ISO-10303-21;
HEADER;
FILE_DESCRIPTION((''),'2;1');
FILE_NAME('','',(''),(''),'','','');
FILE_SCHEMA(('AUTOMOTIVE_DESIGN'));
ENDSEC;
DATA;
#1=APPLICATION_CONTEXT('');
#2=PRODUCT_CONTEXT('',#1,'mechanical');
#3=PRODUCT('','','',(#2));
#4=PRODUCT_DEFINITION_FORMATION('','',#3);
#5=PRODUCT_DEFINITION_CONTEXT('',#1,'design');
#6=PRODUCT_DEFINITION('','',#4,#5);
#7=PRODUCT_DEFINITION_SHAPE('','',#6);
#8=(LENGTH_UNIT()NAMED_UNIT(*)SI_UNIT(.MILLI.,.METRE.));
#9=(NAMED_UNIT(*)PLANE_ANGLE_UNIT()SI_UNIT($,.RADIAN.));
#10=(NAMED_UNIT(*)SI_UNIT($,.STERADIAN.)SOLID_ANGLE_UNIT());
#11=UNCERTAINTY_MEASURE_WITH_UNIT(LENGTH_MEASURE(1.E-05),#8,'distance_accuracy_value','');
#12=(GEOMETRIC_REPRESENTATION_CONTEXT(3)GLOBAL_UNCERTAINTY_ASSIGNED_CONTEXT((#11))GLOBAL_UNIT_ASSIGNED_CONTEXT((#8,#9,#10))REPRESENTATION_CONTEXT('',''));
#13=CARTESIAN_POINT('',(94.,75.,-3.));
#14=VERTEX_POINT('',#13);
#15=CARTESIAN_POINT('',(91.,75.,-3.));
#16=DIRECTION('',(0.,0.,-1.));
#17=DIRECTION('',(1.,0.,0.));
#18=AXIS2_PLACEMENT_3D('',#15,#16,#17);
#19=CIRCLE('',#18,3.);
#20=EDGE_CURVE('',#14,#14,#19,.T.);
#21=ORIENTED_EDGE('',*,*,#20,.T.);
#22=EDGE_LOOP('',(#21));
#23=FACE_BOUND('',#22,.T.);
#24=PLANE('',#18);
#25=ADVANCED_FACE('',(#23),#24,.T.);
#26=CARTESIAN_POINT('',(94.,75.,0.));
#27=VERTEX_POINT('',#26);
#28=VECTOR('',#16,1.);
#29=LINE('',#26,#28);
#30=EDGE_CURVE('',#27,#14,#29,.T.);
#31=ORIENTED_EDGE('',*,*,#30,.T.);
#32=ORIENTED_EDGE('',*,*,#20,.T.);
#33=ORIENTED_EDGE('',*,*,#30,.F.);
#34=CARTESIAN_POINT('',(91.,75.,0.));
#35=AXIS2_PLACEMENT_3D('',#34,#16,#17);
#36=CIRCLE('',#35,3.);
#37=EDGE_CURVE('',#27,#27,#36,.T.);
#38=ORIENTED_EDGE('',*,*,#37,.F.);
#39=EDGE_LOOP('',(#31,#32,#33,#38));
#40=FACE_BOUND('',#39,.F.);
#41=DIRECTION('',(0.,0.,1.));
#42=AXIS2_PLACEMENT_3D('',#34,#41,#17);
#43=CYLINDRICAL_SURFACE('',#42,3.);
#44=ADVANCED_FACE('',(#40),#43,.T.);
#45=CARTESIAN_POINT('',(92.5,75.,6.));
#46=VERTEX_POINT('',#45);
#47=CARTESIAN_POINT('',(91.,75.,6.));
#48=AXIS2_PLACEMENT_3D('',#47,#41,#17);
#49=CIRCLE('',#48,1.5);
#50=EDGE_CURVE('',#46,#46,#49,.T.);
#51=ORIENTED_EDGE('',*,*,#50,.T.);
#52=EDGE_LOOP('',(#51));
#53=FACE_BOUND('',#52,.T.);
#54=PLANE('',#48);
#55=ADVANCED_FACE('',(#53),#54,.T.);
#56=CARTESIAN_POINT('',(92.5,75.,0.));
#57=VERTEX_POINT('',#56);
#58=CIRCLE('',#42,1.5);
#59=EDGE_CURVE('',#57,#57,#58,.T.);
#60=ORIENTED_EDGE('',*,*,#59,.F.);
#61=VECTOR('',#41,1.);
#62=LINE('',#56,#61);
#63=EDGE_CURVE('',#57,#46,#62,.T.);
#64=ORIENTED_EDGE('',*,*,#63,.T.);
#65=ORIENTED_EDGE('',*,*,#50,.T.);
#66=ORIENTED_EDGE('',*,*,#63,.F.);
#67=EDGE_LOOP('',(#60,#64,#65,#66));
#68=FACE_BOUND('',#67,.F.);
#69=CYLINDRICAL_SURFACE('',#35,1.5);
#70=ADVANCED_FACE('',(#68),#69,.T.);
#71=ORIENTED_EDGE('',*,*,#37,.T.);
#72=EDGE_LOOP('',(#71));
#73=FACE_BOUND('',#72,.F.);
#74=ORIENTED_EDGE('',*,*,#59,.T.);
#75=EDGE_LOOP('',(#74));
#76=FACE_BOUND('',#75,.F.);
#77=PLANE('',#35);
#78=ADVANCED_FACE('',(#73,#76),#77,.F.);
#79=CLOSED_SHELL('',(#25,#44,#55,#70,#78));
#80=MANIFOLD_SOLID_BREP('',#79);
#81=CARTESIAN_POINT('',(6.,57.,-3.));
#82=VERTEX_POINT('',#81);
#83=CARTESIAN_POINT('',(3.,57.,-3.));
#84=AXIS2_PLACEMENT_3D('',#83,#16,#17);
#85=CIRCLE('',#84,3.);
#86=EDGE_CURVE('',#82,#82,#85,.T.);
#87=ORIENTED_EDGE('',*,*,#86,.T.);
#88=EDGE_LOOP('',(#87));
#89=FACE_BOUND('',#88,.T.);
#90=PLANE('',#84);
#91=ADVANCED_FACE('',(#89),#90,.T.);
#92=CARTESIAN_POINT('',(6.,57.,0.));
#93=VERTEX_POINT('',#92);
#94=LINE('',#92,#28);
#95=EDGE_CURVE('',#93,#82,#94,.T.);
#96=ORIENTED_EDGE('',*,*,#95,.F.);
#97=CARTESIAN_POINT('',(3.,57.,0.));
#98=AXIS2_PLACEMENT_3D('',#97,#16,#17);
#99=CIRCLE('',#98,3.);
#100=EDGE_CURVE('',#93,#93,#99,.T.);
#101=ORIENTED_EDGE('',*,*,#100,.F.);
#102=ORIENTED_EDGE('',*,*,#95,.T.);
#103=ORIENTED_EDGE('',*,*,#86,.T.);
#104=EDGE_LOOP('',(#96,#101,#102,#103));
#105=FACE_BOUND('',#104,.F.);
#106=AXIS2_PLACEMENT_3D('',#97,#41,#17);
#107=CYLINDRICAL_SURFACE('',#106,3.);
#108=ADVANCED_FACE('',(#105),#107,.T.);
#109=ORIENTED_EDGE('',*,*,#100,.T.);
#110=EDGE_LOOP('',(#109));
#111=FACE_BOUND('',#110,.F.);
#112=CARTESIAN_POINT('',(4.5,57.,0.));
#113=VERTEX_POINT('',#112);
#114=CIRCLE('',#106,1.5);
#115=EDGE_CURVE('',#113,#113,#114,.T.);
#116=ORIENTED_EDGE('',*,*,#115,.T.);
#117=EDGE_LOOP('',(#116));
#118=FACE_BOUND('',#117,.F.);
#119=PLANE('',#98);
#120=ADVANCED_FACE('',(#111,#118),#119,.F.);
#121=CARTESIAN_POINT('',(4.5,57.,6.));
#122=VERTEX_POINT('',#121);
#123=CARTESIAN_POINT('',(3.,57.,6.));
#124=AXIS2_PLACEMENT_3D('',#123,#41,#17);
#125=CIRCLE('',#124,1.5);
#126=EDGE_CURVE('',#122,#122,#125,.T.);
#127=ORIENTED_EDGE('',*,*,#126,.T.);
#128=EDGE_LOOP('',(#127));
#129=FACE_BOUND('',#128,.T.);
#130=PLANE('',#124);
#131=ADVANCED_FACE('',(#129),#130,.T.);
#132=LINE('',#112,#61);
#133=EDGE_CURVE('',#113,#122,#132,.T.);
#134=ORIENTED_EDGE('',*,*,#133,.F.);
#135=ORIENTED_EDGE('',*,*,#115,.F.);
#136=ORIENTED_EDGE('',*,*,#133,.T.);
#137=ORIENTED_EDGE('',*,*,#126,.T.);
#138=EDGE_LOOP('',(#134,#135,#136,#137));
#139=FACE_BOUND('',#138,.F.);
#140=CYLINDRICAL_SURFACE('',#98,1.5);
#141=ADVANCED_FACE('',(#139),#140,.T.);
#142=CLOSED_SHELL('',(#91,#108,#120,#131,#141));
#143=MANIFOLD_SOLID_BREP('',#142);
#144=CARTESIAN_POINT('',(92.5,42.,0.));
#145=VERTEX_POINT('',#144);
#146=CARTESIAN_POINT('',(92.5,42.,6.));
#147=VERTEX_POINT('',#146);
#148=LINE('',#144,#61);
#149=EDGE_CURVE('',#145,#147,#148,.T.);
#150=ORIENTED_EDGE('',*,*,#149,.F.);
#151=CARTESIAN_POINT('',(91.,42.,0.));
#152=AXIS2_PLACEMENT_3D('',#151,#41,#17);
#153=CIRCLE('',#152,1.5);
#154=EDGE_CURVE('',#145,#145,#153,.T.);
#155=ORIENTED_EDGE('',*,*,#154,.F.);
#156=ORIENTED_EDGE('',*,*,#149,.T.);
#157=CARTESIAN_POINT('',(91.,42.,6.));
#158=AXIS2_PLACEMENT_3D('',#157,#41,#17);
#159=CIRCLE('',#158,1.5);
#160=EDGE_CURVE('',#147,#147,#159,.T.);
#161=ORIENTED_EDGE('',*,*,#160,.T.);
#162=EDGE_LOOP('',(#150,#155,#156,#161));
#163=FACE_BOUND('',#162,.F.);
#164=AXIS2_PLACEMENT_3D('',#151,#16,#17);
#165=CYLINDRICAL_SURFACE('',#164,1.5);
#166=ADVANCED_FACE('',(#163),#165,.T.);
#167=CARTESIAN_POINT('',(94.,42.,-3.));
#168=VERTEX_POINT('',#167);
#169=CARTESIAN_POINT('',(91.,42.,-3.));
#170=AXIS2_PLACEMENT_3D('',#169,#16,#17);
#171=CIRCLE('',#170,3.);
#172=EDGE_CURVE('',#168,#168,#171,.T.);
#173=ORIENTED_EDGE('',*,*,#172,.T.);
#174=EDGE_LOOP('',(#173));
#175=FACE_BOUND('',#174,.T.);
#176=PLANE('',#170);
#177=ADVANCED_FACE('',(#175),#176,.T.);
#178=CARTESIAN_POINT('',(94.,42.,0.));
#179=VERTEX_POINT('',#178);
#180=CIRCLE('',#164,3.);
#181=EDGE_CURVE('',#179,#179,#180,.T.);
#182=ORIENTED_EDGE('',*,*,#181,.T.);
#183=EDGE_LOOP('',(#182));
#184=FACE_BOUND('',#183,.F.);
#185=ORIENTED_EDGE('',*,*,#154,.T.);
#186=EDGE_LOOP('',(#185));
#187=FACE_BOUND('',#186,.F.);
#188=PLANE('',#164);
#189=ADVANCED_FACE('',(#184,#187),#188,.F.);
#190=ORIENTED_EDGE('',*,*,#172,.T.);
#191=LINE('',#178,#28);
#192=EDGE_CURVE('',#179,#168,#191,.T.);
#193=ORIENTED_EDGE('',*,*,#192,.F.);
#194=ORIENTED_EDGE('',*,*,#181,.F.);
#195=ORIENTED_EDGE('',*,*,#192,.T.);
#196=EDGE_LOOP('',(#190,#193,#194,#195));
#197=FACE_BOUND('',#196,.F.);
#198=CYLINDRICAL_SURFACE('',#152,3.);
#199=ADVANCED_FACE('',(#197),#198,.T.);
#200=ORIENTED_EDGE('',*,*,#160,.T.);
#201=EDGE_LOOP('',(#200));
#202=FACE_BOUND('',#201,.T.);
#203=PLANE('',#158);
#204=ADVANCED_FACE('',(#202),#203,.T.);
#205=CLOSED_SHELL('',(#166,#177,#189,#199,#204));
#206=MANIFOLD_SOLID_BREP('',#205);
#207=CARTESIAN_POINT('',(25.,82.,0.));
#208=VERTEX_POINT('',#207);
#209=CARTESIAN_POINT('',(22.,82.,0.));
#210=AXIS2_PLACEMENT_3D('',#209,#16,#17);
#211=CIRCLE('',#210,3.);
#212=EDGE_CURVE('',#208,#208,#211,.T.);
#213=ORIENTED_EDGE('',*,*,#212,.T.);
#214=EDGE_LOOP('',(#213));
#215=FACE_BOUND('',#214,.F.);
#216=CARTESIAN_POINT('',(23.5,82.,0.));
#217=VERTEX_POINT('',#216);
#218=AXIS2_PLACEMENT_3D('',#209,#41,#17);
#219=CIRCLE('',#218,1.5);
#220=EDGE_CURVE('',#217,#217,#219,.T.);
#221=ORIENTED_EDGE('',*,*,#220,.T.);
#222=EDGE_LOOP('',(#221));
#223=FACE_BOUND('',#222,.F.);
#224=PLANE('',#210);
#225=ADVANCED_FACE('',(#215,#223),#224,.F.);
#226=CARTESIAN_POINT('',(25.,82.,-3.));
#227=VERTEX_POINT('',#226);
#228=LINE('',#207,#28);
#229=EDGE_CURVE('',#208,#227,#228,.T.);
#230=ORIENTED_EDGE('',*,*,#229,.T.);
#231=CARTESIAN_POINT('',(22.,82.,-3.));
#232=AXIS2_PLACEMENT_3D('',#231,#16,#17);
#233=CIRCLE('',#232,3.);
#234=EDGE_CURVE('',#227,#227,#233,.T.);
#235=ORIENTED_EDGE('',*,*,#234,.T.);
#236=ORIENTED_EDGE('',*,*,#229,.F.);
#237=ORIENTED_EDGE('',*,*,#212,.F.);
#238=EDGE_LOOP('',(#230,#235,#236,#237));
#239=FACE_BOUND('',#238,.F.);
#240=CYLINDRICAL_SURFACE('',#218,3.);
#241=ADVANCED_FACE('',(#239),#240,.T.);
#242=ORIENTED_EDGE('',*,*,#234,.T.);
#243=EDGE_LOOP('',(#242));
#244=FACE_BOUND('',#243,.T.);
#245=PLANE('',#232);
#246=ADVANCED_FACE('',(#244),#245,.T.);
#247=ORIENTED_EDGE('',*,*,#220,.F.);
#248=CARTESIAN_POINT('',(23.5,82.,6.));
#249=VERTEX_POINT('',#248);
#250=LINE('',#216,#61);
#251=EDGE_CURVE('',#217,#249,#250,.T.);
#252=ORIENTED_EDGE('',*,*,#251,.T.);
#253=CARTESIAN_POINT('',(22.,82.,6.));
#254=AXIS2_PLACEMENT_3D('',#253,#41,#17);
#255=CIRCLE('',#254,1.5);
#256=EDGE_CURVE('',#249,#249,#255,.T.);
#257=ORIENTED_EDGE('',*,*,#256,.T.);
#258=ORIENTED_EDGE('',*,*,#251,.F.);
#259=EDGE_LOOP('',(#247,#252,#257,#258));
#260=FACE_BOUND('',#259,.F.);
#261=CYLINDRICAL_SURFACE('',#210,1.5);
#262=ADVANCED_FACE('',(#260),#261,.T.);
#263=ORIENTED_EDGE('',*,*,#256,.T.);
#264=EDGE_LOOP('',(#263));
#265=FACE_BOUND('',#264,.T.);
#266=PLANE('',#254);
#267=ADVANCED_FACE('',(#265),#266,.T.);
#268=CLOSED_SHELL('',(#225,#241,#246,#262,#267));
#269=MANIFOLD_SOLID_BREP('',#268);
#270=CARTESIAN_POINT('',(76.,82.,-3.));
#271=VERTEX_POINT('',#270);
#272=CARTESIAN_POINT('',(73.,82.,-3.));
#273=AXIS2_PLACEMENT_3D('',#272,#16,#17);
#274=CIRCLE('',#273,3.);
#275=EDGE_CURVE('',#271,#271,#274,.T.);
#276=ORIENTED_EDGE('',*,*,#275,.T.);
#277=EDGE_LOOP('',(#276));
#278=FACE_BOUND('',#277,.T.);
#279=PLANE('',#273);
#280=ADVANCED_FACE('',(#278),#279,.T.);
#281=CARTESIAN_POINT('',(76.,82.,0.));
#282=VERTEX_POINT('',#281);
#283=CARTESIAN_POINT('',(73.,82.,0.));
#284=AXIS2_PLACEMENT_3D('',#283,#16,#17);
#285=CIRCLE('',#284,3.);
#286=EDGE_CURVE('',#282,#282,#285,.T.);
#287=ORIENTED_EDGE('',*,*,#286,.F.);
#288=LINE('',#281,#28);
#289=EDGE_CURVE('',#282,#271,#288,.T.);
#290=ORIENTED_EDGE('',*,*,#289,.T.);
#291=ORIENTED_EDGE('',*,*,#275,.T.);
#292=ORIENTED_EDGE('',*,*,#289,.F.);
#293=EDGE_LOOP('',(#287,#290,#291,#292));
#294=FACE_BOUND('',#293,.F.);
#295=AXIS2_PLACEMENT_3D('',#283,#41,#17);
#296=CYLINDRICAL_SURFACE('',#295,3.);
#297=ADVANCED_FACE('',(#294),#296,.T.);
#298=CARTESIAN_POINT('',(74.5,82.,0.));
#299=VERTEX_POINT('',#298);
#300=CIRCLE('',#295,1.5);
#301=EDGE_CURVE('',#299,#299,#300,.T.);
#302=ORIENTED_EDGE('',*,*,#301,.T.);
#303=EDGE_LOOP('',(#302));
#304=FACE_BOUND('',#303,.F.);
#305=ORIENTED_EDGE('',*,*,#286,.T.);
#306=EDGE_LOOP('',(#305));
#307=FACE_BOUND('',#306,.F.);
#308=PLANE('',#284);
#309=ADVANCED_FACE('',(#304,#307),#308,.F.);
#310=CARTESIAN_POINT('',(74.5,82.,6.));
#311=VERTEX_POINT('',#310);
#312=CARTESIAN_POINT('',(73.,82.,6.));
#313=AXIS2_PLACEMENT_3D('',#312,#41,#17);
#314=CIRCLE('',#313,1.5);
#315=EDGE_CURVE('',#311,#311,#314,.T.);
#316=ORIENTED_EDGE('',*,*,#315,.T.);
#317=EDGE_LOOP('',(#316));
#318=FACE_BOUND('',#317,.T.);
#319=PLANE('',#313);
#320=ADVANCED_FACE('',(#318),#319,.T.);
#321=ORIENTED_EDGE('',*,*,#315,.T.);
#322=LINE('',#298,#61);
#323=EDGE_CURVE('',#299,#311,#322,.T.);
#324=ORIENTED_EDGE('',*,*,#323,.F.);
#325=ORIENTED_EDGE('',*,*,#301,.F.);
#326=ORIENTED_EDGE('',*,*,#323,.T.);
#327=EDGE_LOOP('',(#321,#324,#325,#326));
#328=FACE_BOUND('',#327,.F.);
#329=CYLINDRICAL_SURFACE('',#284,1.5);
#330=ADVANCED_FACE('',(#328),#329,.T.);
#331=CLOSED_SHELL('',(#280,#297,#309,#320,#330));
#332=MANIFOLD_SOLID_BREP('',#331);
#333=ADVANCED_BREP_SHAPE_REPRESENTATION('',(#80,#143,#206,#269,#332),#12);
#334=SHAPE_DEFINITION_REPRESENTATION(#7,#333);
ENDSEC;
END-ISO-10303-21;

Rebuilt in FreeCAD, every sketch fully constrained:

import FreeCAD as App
import Part
import Sketcher

doc = App.newDocument("Part")
params = doc.addObject("Spreadsheet::Sheet", "Params")
for row, (alias, value) in enumerate([
    ("sketch1_diameter", "3 mm"),
    ("pad1_length", "6 mm"),
    ("sketch2_diameter", "6 mm"),
    ("pad2_length", "3 mm"),
], start=1):
    params.set(f"A{row}", alias)
    params.set(f"B{row}", "=" + value)
    params.setAlias(f"B{row}", alias)

body = doc.addObject("PartDesign::Body", "Body")
body.AllowCompound = True

# Sketch on XY plane
sketch1 = body.newObject("Sketcher::SketchObject", "Sketch")
sketch1.AttachmentSupport = (doc.getObject("XY_Plane"), [""])
sketch1.MapMode = "FlatFace"
sketch1.addGeometry(Part.Circle(App.Vector(3, 57, 0), App.Vector(0, 0, 1), 1.5), False)
sketch1.addGeometry(Part.Circle(App.Vector(22, 82, 0), App.Vector(0, 0, 1), 1.5), False)
sketch1.addGeometry(Part.Circle(App.Vector(73, 82, 0), App.Vector(0, 0, 1), 1.5), False)
sketch1.addGeometry(Part.Circle(App.Vector(91, 75, 0), App.Vector(0, 0, 1), 1.5), False)
sketch1.addGeometry(Part.Circle(App.Vector(91, 42, 0), App.Vector(0, 0, 1), 1.5), False)
sketch1.addConstraint(Sketcher.Constraint("Equal", 0, 1))
sketch1.addConstraint(Sketcher.Constraint("Equal", 1, 2))
sketch1.addConstraint(Sketcher.Constraint("Equal", 2, 3))
sketch1.addConstraint(Sketcher.Constraint("Equal", 3, 4))
sketch1.addConstraint(Sketcher.Constraint("Horizontal", 1, 3, 2, 3))
sketch1.addConstraint(Sketcher.Constraint("Vertical", 3, 3, 4, 3))
sketch1.addConstraint(Sketcher.Constraint("Diameter", 0, 3.0))
sketch1.addConstraint(Sketcher.Constraint("DistanceX", -1, 1, 0, 3, 3.0))
sketch1.addConstraint(Sketcher.Constraint("DistanceY", -1, 1, 0, 3, 57.0))
sketch1.addConstraint(Sketcher.Constraint("DistanceX", -1, 1, 1, 3, 22.0))
sketch1.addConstraint(Sketcher.Constraint("DistanceY", -1, 1, 1, 3, 82.0))
sketch1.addConstraint(Sketcher.Constraint("DistanceX", -1, 1, 2, 3, 73.0))
sketch1.addConstraint(Sketcher.Constraint("DistanceX", -1, 1, 3, 3, 91.0))
sketch1.addConstraint(Sketcher.Constraint("DistanceY", -1, 1, 3, 3, 75.0))
sketch1.addConstraint(Sketcher.Constraint("DistanceY", -1, 1, 4, 3, 42.0))
sketch1.setExpression("Constraints[6]", "Params.sketch1_diameter")
pad1 = body.newObject("PartDesign::Pad", "Pad")
pad1.Profile = sketch1
pad1.setExpression("Length", "Params.pad1_length")
body2 = doc.addObject("PartDesign::Body", "Body001")
body2.AllowCompound = True

# Sketch on XY plane
sketch2 = body2.newObject("Sketcher::SketchObject", "Sketch001")
sketch2.AttachmentSupport = (doc.getObject("XY_Plane001"), [""])
sketch2.MapMode = "FlatFace"
sketch2.addGeometry(Part.Circle(App.Vector(3, 57, 0), App.Vector(0, 0, 1), 3), False)
sketch2.addGeometry(Part.Circle(App.Vector(91, 42, 0), App.Vector(0, 0, 1), 3), False)
sketch2.addGeometry(Part.Circle(App.Vector(91, 75, 0), App.Vector(0, 0, 1), 3), False)
sketch2.addGeometry(Part.Circle(App.Vector(73, 82, 0), App.Vector(0, 0, 1), 3), False)
sketch2.addGeometry(Part.Circle(App.Vector(22, 82, 0), App.Vector(0, 0, 1), 3), False)
sketch2.addConstraint(Sketcher.Constraint("Equal", 0, 1))
sketch2.addConstraint(Sketcher.Constraint("Equal", 1, 2))
sketch2.addConstraint(Sketcher.Constraint("Equal", 2, 3))
sketch2.addConstraint(Sketcher.Constraint("Equal", 3, 4))
sketch2.addConstraint(Sketcher.Constraint("Horizontal", 3, 3, 4, 3))
sketch2.addConstraint(Sketcher.Constraint("Vertical", 1, 3, 2, 3))
sketch2.addConstraint(Sketcher.Constraint("Diameter", 0, 6.0))
sketch2.addConstraint(Sketcher.Constraint("DistanceX", -1, 1, 0, 3, 3.0))
sketch2.addConstraint(Sketcher.Constraint("DistanceY", -1, 1, 0, 3, 57.0))
sketch2.addConstraint(Sketcher.Constraint("DistanceX", -1, 1, 1, 3, 91.0))
sketch2.addConstraint(Sketcher.Constraint("DistanceY", -1, 1, 1, 3, 42.0))
sketch2.addConstraint(Sketcher.Constraint("DistanceY", -1, 1, 2, 3, 75.0))
sketch2.addConstraint(Sketcher.Constraint("DistanceX", -1, 1, 3, 3, 73.0))
sketch2.addConstraint(Sketcher.Constraint("DistanceY", -1, 1, 3, 3, 82.0))
sketch2.addConstraint(Sketcher.Constraint("DistanceX", -1, 1, 4, 3, 22.0))
sketch2.setExpression("Constraints[6]", "Params.sketch2_diameter")
pad2 = body2.newObject("PartDesign::Pad", "Pad001")
pad2.Profile = sketch2
pad2.setExpression("Length", "Params.pad2_length")
pad2.Reversed = True
doc.recompute()

boolean = body2.newObject("PartDesign::Boolean", "Boolean")
boolean.Type = "Fuse"
boolean.addObjects([body])

doc.recompute()
